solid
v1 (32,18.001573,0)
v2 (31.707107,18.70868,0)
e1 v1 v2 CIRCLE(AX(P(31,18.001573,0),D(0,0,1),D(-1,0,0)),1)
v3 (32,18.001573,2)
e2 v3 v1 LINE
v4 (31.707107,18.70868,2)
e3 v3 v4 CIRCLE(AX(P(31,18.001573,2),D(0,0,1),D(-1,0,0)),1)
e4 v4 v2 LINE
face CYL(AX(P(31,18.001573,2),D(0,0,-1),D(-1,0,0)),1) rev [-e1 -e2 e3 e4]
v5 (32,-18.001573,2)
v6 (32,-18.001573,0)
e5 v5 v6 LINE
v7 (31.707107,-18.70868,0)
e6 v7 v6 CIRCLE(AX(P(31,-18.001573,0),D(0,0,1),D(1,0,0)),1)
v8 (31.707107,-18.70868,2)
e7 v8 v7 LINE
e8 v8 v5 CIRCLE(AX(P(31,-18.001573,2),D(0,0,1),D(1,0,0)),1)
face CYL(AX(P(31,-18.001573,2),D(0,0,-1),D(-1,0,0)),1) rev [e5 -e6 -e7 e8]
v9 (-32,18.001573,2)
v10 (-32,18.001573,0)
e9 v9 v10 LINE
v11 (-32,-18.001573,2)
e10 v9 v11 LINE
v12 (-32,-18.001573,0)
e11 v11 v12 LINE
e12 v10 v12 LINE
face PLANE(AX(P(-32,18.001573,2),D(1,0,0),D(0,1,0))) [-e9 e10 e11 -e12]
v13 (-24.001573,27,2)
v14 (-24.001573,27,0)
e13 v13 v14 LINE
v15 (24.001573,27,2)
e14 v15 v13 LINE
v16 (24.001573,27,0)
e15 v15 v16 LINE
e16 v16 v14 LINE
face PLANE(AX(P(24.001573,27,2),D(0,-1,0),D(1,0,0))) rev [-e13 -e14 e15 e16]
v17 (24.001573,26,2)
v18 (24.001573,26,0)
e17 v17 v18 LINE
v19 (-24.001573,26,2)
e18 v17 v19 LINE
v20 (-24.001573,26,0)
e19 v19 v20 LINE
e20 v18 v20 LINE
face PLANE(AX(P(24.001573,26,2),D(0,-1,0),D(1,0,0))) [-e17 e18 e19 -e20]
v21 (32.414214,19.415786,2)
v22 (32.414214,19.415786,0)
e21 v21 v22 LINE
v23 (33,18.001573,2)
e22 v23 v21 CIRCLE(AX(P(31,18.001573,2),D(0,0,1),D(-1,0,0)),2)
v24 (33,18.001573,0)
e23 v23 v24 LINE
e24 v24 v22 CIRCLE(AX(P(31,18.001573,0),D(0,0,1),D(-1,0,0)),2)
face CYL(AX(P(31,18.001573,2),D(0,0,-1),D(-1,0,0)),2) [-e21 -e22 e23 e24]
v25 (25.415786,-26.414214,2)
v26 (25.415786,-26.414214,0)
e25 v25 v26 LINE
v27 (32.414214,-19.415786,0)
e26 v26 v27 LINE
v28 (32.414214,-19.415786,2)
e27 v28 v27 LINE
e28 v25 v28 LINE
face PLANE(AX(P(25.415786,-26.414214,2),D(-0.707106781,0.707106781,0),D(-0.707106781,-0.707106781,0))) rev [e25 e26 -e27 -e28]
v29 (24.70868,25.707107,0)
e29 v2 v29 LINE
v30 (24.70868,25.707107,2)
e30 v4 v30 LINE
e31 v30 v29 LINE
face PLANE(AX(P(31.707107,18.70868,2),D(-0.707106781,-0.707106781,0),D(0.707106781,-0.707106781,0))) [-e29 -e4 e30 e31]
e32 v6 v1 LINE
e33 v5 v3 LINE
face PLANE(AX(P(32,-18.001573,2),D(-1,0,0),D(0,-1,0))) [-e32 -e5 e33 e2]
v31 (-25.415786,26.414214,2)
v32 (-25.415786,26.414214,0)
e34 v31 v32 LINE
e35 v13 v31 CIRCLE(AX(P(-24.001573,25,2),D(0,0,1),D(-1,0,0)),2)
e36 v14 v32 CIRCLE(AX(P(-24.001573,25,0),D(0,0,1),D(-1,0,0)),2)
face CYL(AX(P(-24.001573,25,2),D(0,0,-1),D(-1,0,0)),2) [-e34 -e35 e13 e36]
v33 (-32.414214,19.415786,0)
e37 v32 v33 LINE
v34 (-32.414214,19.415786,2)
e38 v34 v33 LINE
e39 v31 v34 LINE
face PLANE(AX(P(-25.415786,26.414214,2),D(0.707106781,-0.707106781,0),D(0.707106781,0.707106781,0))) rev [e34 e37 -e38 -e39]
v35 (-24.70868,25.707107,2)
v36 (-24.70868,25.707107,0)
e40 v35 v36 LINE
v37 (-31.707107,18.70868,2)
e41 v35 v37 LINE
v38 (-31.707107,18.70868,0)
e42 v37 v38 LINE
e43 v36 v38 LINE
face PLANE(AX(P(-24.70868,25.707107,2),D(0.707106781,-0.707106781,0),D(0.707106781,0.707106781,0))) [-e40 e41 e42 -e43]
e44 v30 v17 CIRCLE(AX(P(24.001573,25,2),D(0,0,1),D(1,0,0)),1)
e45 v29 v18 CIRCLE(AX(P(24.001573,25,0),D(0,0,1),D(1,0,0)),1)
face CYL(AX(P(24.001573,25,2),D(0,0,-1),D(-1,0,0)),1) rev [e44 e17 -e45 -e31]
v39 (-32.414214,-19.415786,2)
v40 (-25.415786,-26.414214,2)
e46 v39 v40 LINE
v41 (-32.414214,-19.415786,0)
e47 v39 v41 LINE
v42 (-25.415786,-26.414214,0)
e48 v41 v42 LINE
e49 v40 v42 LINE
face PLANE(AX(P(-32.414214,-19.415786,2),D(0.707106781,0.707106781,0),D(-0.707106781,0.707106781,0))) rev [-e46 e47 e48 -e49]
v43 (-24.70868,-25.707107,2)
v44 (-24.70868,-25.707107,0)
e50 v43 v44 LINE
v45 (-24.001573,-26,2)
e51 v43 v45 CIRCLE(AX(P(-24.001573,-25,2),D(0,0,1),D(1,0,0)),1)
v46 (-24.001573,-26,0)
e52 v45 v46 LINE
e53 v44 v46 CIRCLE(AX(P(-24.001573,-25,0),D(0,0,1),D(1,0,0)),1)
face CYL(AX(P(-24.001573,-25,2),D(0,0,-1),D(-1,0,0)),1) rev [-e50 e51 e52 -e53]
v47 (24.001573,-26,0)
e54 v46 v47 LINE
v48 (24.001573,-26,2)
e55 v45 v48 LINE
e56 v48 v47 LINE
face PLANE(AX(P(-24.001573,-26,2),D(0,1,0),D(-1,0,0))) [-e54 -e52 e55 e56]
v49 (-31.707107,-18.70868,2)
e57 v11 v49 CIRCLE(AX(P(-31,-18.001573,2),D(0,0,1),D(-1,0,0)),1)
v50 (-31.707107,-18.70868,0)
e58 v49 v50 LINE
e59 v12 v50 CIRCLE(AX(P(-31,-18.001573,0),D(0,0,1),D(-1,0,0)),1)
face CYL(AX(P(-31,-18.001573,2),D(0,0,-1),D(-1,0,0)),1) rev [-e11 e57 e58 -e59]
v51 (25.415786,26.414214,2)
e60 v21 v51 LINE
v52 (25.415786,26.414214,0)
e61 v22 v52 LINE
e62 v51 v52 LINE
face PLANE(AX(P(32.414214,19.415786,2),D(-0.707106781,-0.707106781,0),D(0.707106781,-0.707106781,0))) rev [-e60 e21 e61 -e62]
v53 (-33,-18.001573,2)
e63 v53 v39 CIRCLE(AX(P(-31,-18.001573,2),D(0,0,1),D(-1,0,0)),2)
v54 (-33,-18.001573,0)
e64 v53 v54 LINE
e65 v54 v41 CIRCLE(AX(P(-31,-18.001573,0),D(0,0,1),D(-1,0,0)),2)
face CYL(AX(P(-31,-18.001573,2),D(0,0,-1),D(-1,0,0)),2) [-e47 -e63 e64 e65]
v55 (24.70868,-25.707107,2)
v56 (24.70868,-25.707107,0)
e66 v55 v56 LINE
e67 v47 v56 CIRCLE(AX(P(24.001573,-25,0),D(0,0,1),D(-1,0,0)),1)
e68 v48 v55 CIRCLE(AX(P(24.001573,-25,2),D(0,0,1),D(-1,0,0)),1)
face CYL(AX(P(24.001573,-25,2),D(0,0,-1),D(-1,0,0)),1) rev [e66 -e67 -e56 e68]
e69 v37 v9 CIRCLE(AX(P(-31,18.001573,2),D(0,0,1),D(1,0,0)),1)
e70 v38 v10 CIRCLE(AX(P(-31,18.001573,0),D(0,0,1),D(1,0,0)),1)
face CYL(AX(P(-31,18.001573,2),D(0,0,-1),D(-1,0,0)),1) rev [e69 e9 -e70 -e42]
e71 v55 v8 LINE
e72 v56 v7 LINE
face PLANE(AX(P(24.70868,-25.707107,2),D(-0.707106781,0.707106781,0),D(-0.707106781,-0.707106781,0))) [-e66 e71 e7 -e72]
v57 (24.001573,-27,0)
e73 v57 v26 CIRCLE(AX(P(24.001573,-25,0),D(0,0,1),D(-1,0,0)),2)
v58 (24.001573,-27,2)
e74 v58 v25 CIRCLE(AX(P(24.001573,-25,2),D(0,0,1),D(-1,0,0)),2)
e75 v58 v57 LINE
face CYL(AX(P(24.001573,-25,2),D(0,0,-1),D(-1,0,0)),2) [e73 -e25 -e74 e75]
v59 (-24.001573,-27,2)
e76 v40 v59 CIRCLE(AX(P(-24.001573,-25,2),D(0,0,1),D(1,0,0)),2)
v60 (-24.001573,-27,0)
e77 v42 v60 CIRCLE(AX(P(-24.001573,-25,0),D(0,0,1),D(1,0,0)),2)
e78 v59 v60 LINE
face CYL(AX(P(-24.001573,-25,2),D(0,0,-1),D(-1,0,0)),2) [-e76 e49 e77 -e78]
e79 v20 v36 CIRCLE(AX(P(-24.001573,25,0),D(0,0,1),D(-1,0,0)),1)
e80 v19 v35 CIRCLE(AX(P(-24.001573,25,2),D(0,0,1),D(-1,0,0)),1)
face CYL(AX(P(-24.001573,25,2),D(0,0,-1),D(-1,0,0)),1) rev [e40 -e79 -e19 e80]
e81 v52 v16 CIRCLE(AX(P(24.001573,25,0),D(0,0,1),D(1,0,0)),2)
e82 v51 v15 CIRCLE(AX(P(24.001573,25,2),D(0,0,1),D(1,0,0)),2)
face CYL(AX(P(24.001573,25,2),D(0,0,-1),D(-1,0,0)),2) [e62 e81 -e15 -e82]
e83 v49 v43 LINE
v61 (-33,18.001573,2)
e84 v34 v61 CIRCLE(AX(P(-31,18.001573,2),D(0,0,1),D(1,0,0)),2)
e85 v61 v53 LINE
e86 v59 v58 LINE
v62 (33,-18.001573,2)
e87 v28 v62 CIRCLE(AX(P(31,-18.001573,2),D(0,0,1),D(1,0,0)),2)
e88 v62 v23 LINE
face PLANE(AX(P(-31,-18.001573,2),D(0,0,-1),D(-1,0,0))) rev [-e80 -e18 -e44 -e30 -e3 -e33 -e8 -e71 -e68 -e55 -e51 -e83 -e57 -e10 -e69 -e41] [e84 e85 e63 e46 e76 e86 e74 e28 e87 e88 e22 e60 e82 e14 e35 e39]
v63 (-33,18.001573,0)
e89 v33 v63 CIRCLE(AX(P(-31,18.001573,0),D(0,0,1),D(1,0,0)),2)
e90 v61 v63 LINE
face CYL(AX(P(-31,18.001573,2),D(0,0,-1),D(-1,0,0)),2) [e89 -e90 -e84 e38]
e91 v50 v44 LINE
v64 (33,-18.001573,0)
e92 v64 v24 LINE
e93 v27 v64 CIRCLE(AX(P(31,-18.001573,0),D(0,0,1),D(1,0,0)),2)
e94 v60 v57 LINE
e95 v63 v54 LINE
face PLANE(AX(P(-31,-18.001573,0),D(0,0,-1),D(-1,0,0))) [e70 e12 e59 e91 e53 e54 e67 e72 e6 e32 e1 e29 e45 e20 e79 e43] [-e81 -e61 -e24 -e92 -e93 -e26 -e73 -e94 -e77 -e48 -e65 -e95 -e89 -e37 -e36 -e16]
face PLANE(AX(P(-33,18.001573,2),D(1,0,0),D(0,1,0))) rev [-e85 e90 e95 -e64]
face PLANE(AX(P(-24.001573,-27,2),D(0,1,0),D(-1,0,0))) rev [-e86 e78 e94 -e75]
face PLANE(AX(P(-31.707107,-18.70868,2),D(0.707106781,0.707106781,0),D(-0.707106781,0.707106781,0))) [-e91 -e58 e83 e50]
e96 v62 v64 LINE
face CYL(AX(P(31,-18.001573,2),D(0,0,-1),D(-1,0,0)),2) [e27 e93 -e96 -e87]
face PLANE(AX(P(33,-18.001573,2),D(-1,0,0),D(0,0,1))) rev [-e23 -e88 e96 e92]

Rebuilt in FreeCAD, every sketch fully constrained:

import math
import FreeCAD as App
import Part
import Sketcher
Q = App.Units.Quantity

doc = App.newDocument("Part")
params = doc.addObject("Spreadsheet::Sheet", "Params")
for row, (alias, value) in enumerate([
    ("sketch1_radius", "2 mm"),
    ("sketch1_radius2", "1 mm"),
    ("pad1_length", "2 mm"),
], start=1):
    params.set(f"A{row}", alias)
    params.set(f"B{row}", "=" + value)
    params.setAlias(f"B{row}", alias)

body = doc.addObject("PartDesign::Body", "Body")

# Sketch on XY plane
sketch1 = body.newObject("Sketcher::SketchObject", "Sketch")
sketch1.AttachmentSupport = (doc.getObject("XY_Plane"), [""])
sketch1.MapMode = "FlatFace"
sketch1.addGeometry(Part.LineSegment(App.Vector(-24.001573, -27, 0), App.Vector(24.001573, -27, 0)), False)
sketch1.addGeometry(Part.ArcOfCircle(Part.Circle(App.Vector(24.001573, -25, 0), App.Vector(0, 0, 1), 2), math.radians(-90), math.radians(-45)), False)
sketch1.addGeometry(Part.LineSegment(App.Vector(25.415786, -26.414214, 0), App.Vector(32.414214, -19.415786, 0)), False)
sketch1.addGeometry(Part.ArcOfCircle(Part.Circle(App.Vector(31, -18.001573, 0), App.Vector(0, 0, 1), 2), math.radians(-45), math.radians(0)), False)
sketch1.addGeometry(Part.LineSegment(App.Vector(33, -18.001573, 0), App.Vector(33, 18.001573, 0)), False)
sketch1.addGeometry(Part.ArcOfCircle(Part.Circle(App.Vector(31, 18.001573, 0), App.Vector(0, 0, 1), 2), math.radians(0), math.radians(45)), False)
sketch1.addGeometry(Part.LineSegment(App.Vector(32.414214, 19.415786, 0), App.Vector(25.415786, 26.414214, 0)), False)
sketch1.addGeometry(Part.ArcOfCircle(Part.Circle(App.Vector(24.001573, 25, 0), App.Vector(0, 0, 1), 2), math.radians(45), math.radians(90)), False)
sketch1.addGeometry(Part.LineSegment(App.Vector(24.001573, 27, 0), App.Vector(-24.001573, 27, 0)), False)
sketch1.addGeometry(Part.ArcOfCircle(Part.Circle(App.Vector(-24.001573, 25, 0), App.Vector(0, 0, 1), 2), math.radians(90), math.radians(135)), False)
sketch1.addGeometry(Part.LineSegment(App.Vector(-25.415786, 26.414214, 0), App.Vector(-32.414214, 19.415786, 0)), False)
sketch1.addGeometry(Part.ArcOfCircle(Part.Circle(App.Vector(-31, 18.001573, 0), App.Vector(0, 0, 1), 2), math.radians(135), math.radians(180)), False)
sketch1.addGeometry(Part.LineSegment(App.Vector(-33, 18.001573, 0), App.Vector(-33, -18.001573, 0)), False)
sketch1.addGeometry(Part.ArcOfCircle(Part.Circle(App.Vector(-31, -18.001573, 0), App.Vector(0, 0, 1), 2), math.radians(180), math.radians(225)), False)
sketch1.addGeometry(Part.LineSegment(App.Vector(-32.414214, -19.415786, 0), App.Vector(-25.415786, -26.414214, 0)), False)
sketch1.addGeometry(Part.ArcOfCircle(Part.Circle(App.Vector(-24.001573, -25, 0), App.Vector(0, 0, 1), 2), math.radians(-135), math.radians(-90)), False)
sketch1.addGeometry(Part.LineSegment(App.Vector(-24.001573, 26, 0), App.Vector(24.001573, 26, 0)), False)
sketch1.addGeometry(Part.ArcOfCircle(Part.Circle(App.Vector(24.001573, 25, 0), App.Vector(0, 0, 1), 1), math.radians(45), math.radians(90)), False)
sketch1.addGeometry(Part.LineSegment(App.Vector(24.70868, 25.707107, 0), App.Vector(31.707107, 18.70868, 0)), False)
sketch1.addGeometry(Part.ArcOfCircle(Part.Circle(App.Vector(31, 18.001573, 0), App.Vector(0, 0, 1), 1), math.radians(0), math.radians(45)), False)
sketch1.addGeometry(Part.LineSegment(App.Vector(32, 18.001573, 0), App.Vector(32, -18.001573, 0)), False)
sketch1.addGeometry(Part.ArcOfCircle(Part.Circle(App.Vector(31, -18.001573, 0), App.Vector(0, 0, 1), 1), math.radians(-45), math.radians(0)), False)
sketch1.addGeometry(Part.LineSegment(App.Vector(31.707107, -18.70868, 0), App.Vector(24.70868, -25.707107, 0)), False)
sketch1.addGeometry(Part.ArcOfCircle(Part.Circle(App.Vector(24.001573, -25, 0), App.Vector(0, 0, 1), 1), math.radians(-90), math.radians(-45)), False)
sketch1.addGeometry(Part.LineSegment(App.Vector(24.001573, -26, 0), App.Vector(-24.001573, -26, 0)), False)
sketch1.addGeometry(Part.ArcOfCircle(Part.Circle(App.Vector(-24.001573, -25, 0), App.Vector(0, 0, 1), 1), math.radians(-135), math.radians(-90)), False)
sketch1.addGeometry(Part.LineSegment(App.Vector(-24.70868, -25.707107, 0), App.Vector(-31.707107, -18.70868, 0)), False)
sketch1.addGeometry(Part.ArcOfCircle(Part.Circle(App.Vector(-31, -18.001573, 0), App.Vector(0, 0, 1), 1), math.radians(180), math.radians(225)), False)
sketch1.addGeometry(Part.LineSegment(App.Vector(-32, -18.001573, 0), App.Vector(-32, 18.001573, 0)), False)
sketch1.addGeometry(Part.ArcOfCircle(Part.Circle(App.Vector(-31, 18.001573, 0), App.Vector(0, 0, 1), 1), math.radians(135), math.radians(180)), False)
sketch1.addGeometry(Part.LineSegment(App.Vector(-31.707107, 18.70868, 0), App.Vector(-24.70868, 25.707107, 0)), False)
sketch1.addGeometry(Part.ArcOfCircle(Part.Circle(App.Vector(-24.001573, 25, 0), App.Vector(0, 0, 1), 1), math.radians(90), math.radians(135)), False)
sketch1.addConstraint(Sketcher.Constraint("Tangent", 0, 2, 1, 1))
sketch1.addConstraint(Sketcher.Constraint("Tangent", 1, 2, 2, 1))
sketch1.addConstraint(Sketcher.Constraint("Tangent", 2, 2, 3, 1))
sketch1.addConstraint(Sketcher.Constraint("Tangent", 3, 2, 4, 1))
sketch1.addConstraint(Sketcher.Constraint("Tangent", 4, 2, 5, 1))
sketch1.addConstraint(Sketcher.Constraint("Tangent", 5, 2, 6, 1))
sketch1.addConstraint(Sketcher.Constraint("Tangent", 6, 2, 7, 1))
sketch1.addConstraint(Sketcher.Constraint("Tangent", 7, 2, 8, 1))
sketch1.addConstraint(Sketcher.Constraint("Tangent", 8, 2, 9, 1))
sketch1.addConstraint(Sketcher.Constraint("Tangent", 9, 2, 10, 1))
sketch1.addConstraint(Sketcher.Constraint("Tangent", 10, 2, 11, 1))
sketch1.addConstraint(Sketcher.Constraint("Tangent", 11, 2, 12, 1))
sketch1.addConstraint(Sketcher.Constraint("Tangent", 12, 2, 13, 1))
sketch1.addConstraint(Sketcher.Constraint("Tangent", 13, 2, 14, 1))
sketch1.addConstraint(Sketcher.Constraint("Tangent", 14, 2, 15, 1))
sketch1.addConstraint(Sketcher.Constraint("Tangent", 15, 2, 0, 1))
sketch1.addConstraint(Sketcher.Constraint("Tangent", 16, 2, 17, 2))
sketch1.addConstraint(Sketcher.Constraint("Tangent", 17, 1, 18, 1))
sketch1.addConstraint(Sketcher.Constraint("Tangent", 18, 2, 19, 2))
sketch1.addConstraint(Sketcher.Constraint("Tangent", 19, 1, 20, 1))
sketch1.addConstraint(Sketcher.Constraint("Tangent", 20, 2, 21, 2))
sketch1.addConstraint(Sketcher.Constraint("Tangent", 21, 1, 22, 1))
sketch1.addConstraint(Sketcher.Constraint("Tangent", 22, 2, 23, 2))
sketch1.addConstraint(Sketcher.Constraint("Tangent", 23, 1, 24, 1))
sketch1.addConstraint(Sketcher.Constraint("Tangent", 24, 2, 25, 2))
sketch1.addConstraint(Sketcher.Constraint("Tangent", 25, 1, 26, 1))
sketch1.addConstraint(Sketcher.Constraint("Tangent", 26, 2, 27, 2))
sketch1.addConstraint(Sketcher.Constraint("Tangent", 27, 1, 28, 1))
sketch1.addConstraint(Sketcher.Constraint("Tangent", 28, 2, 29, 2))
sketch1.addConstraint(Sketcher.Constraint("Tangent", 29, 1, 30, 1))
sketch1.addConstraint(Sketcher.Constraint("Tangent", 30, 2, 31, 2))
sketch1.addConstraint(Sketcher.Constraint("Tangent", 31, 1, 16, 1))
sketch1.addConstraint(Sketcher.Constraint("Horizontal", 0))
sketch1.addConstraint(Sketcher.Constraint("Vertical", 4))
sketch1.addConstraint(Sketcher.Constraint("Horizontal", 8))
sketch1.addConstraint(Sketcher.Constraint("Vertical", 12))
sketch1.addConstraint(Sketcher.Constraint("Horizontal", 16))
sketch1.addConstraint(Sketcher.Constraint("Vertical", 20))
sketch1.addConstraint(Sketcher.Constraint("Horizontal", 24))
sketch1.addConstraint(Sketcher.Constraint("Vertical", 28))
sketch1.addConstraint(Sketcher.Constraint("Coincident", 17, 3, 7, 3))
sketch1.addConstraint(Sketcher.Constraint("Coincident", 19, 3, 5, 3))
sketch1.addConstraint(Sketcher.Constraint("Coincident", 21, 3, 3, 3))
sketch1.addConstraint(Sketcher.Constraint("Coincident", 23, 3, 1, 3))
sketch1.addConstraint(Sketcher.Constraint("Coincident", 25, 3, 15, 3))
sketch1.addConstraint(Sketcher.Constraint("Coincident", 27, 3, 13, 3))
sketch1.addConstraint(Sketcher.Constraint("Coincident", 29, 3, 11, 3))
sketch1.addConstraint(Sketcher.Constraint("Coincident", 31, 3, 9, 3))
sketch1.addConstraint(Sketcher.Constraint("Equal", 1, 3))
sketch1.addConstraint(Sketcher.Constraint("Equal", 3, 5))
sketch1.addConstraint(Sketcher.Constraint("Equal", 5, 7))
sketch1.addConstraint(Sketcher.Constraint("Equal", 7, 9))
sketch1.addConstraint(Sketcher.Constraint("Equal", 9, 11))
sketch1.addConstraint(Sketcher.Constraint("Equal", 11, 13))
sketch1.addConstraint(Sketcher.Constraint("Equal", 13, 15))
sketch1.addConstraint(Sketcher.Constraint("Equal", 17, 19))
sketch1.addConstraint(Sketcher.Constraint("Equal", 21, 23))
sketch1.addConstraint(Sketcher.Constraint("Equal", 25, 27))
sketch1.addConstraint(Sketcher.Constraint("Symmetric", 1, 3, 9, 3, -1, 1))
sketch1.addConstraint(Sketcher.Constraint("Symmetric", 3, 3, 11, 3, -1, 1))
sketch1.addConstraint(Sketcher.Constraint("Symmetric", 5, 2, 13, 2, -1, 1))
sketch1.addConstraint(Sketcher.Constraint("Symmetric", 6, 2, 9, 2, -2))
sketch1.addConstraint(Sketcher.Constraint("Perpendicular", 2, 6))
sketch1.addConstraint(Sketcher.Constraint("Radius", 1, Q("2 mm")))
sketch1.addConstraint(Sketcher.Constraint("Radius", 17, Q("1 mm")))
sketch1.addConstraint(Sketcher.Constraint("DistanceY", 1, 3, -1, 1, Q("25 mm")))
sketch1.addConstraint(Sketcher.Constraint("DistanceX", -1, 1, 3, 3, Q("31 mm")))
sketch1.addConstraint(Sketcher.Constraint("Distance", 2, Q("9.897271 mm")))
sketch1.setExpression("Constraints[63]", "Params.sketch1_radius")
sketch1.setExpression("Constraints[64]", "Params.sketch1_radius2")
pad1 = body.newObject("PartDesign::Pad", "Pad")
pad1.Profile = sketch1
pad1.setExpression("Length", "Params.pad1_length")

doc.recompute()
